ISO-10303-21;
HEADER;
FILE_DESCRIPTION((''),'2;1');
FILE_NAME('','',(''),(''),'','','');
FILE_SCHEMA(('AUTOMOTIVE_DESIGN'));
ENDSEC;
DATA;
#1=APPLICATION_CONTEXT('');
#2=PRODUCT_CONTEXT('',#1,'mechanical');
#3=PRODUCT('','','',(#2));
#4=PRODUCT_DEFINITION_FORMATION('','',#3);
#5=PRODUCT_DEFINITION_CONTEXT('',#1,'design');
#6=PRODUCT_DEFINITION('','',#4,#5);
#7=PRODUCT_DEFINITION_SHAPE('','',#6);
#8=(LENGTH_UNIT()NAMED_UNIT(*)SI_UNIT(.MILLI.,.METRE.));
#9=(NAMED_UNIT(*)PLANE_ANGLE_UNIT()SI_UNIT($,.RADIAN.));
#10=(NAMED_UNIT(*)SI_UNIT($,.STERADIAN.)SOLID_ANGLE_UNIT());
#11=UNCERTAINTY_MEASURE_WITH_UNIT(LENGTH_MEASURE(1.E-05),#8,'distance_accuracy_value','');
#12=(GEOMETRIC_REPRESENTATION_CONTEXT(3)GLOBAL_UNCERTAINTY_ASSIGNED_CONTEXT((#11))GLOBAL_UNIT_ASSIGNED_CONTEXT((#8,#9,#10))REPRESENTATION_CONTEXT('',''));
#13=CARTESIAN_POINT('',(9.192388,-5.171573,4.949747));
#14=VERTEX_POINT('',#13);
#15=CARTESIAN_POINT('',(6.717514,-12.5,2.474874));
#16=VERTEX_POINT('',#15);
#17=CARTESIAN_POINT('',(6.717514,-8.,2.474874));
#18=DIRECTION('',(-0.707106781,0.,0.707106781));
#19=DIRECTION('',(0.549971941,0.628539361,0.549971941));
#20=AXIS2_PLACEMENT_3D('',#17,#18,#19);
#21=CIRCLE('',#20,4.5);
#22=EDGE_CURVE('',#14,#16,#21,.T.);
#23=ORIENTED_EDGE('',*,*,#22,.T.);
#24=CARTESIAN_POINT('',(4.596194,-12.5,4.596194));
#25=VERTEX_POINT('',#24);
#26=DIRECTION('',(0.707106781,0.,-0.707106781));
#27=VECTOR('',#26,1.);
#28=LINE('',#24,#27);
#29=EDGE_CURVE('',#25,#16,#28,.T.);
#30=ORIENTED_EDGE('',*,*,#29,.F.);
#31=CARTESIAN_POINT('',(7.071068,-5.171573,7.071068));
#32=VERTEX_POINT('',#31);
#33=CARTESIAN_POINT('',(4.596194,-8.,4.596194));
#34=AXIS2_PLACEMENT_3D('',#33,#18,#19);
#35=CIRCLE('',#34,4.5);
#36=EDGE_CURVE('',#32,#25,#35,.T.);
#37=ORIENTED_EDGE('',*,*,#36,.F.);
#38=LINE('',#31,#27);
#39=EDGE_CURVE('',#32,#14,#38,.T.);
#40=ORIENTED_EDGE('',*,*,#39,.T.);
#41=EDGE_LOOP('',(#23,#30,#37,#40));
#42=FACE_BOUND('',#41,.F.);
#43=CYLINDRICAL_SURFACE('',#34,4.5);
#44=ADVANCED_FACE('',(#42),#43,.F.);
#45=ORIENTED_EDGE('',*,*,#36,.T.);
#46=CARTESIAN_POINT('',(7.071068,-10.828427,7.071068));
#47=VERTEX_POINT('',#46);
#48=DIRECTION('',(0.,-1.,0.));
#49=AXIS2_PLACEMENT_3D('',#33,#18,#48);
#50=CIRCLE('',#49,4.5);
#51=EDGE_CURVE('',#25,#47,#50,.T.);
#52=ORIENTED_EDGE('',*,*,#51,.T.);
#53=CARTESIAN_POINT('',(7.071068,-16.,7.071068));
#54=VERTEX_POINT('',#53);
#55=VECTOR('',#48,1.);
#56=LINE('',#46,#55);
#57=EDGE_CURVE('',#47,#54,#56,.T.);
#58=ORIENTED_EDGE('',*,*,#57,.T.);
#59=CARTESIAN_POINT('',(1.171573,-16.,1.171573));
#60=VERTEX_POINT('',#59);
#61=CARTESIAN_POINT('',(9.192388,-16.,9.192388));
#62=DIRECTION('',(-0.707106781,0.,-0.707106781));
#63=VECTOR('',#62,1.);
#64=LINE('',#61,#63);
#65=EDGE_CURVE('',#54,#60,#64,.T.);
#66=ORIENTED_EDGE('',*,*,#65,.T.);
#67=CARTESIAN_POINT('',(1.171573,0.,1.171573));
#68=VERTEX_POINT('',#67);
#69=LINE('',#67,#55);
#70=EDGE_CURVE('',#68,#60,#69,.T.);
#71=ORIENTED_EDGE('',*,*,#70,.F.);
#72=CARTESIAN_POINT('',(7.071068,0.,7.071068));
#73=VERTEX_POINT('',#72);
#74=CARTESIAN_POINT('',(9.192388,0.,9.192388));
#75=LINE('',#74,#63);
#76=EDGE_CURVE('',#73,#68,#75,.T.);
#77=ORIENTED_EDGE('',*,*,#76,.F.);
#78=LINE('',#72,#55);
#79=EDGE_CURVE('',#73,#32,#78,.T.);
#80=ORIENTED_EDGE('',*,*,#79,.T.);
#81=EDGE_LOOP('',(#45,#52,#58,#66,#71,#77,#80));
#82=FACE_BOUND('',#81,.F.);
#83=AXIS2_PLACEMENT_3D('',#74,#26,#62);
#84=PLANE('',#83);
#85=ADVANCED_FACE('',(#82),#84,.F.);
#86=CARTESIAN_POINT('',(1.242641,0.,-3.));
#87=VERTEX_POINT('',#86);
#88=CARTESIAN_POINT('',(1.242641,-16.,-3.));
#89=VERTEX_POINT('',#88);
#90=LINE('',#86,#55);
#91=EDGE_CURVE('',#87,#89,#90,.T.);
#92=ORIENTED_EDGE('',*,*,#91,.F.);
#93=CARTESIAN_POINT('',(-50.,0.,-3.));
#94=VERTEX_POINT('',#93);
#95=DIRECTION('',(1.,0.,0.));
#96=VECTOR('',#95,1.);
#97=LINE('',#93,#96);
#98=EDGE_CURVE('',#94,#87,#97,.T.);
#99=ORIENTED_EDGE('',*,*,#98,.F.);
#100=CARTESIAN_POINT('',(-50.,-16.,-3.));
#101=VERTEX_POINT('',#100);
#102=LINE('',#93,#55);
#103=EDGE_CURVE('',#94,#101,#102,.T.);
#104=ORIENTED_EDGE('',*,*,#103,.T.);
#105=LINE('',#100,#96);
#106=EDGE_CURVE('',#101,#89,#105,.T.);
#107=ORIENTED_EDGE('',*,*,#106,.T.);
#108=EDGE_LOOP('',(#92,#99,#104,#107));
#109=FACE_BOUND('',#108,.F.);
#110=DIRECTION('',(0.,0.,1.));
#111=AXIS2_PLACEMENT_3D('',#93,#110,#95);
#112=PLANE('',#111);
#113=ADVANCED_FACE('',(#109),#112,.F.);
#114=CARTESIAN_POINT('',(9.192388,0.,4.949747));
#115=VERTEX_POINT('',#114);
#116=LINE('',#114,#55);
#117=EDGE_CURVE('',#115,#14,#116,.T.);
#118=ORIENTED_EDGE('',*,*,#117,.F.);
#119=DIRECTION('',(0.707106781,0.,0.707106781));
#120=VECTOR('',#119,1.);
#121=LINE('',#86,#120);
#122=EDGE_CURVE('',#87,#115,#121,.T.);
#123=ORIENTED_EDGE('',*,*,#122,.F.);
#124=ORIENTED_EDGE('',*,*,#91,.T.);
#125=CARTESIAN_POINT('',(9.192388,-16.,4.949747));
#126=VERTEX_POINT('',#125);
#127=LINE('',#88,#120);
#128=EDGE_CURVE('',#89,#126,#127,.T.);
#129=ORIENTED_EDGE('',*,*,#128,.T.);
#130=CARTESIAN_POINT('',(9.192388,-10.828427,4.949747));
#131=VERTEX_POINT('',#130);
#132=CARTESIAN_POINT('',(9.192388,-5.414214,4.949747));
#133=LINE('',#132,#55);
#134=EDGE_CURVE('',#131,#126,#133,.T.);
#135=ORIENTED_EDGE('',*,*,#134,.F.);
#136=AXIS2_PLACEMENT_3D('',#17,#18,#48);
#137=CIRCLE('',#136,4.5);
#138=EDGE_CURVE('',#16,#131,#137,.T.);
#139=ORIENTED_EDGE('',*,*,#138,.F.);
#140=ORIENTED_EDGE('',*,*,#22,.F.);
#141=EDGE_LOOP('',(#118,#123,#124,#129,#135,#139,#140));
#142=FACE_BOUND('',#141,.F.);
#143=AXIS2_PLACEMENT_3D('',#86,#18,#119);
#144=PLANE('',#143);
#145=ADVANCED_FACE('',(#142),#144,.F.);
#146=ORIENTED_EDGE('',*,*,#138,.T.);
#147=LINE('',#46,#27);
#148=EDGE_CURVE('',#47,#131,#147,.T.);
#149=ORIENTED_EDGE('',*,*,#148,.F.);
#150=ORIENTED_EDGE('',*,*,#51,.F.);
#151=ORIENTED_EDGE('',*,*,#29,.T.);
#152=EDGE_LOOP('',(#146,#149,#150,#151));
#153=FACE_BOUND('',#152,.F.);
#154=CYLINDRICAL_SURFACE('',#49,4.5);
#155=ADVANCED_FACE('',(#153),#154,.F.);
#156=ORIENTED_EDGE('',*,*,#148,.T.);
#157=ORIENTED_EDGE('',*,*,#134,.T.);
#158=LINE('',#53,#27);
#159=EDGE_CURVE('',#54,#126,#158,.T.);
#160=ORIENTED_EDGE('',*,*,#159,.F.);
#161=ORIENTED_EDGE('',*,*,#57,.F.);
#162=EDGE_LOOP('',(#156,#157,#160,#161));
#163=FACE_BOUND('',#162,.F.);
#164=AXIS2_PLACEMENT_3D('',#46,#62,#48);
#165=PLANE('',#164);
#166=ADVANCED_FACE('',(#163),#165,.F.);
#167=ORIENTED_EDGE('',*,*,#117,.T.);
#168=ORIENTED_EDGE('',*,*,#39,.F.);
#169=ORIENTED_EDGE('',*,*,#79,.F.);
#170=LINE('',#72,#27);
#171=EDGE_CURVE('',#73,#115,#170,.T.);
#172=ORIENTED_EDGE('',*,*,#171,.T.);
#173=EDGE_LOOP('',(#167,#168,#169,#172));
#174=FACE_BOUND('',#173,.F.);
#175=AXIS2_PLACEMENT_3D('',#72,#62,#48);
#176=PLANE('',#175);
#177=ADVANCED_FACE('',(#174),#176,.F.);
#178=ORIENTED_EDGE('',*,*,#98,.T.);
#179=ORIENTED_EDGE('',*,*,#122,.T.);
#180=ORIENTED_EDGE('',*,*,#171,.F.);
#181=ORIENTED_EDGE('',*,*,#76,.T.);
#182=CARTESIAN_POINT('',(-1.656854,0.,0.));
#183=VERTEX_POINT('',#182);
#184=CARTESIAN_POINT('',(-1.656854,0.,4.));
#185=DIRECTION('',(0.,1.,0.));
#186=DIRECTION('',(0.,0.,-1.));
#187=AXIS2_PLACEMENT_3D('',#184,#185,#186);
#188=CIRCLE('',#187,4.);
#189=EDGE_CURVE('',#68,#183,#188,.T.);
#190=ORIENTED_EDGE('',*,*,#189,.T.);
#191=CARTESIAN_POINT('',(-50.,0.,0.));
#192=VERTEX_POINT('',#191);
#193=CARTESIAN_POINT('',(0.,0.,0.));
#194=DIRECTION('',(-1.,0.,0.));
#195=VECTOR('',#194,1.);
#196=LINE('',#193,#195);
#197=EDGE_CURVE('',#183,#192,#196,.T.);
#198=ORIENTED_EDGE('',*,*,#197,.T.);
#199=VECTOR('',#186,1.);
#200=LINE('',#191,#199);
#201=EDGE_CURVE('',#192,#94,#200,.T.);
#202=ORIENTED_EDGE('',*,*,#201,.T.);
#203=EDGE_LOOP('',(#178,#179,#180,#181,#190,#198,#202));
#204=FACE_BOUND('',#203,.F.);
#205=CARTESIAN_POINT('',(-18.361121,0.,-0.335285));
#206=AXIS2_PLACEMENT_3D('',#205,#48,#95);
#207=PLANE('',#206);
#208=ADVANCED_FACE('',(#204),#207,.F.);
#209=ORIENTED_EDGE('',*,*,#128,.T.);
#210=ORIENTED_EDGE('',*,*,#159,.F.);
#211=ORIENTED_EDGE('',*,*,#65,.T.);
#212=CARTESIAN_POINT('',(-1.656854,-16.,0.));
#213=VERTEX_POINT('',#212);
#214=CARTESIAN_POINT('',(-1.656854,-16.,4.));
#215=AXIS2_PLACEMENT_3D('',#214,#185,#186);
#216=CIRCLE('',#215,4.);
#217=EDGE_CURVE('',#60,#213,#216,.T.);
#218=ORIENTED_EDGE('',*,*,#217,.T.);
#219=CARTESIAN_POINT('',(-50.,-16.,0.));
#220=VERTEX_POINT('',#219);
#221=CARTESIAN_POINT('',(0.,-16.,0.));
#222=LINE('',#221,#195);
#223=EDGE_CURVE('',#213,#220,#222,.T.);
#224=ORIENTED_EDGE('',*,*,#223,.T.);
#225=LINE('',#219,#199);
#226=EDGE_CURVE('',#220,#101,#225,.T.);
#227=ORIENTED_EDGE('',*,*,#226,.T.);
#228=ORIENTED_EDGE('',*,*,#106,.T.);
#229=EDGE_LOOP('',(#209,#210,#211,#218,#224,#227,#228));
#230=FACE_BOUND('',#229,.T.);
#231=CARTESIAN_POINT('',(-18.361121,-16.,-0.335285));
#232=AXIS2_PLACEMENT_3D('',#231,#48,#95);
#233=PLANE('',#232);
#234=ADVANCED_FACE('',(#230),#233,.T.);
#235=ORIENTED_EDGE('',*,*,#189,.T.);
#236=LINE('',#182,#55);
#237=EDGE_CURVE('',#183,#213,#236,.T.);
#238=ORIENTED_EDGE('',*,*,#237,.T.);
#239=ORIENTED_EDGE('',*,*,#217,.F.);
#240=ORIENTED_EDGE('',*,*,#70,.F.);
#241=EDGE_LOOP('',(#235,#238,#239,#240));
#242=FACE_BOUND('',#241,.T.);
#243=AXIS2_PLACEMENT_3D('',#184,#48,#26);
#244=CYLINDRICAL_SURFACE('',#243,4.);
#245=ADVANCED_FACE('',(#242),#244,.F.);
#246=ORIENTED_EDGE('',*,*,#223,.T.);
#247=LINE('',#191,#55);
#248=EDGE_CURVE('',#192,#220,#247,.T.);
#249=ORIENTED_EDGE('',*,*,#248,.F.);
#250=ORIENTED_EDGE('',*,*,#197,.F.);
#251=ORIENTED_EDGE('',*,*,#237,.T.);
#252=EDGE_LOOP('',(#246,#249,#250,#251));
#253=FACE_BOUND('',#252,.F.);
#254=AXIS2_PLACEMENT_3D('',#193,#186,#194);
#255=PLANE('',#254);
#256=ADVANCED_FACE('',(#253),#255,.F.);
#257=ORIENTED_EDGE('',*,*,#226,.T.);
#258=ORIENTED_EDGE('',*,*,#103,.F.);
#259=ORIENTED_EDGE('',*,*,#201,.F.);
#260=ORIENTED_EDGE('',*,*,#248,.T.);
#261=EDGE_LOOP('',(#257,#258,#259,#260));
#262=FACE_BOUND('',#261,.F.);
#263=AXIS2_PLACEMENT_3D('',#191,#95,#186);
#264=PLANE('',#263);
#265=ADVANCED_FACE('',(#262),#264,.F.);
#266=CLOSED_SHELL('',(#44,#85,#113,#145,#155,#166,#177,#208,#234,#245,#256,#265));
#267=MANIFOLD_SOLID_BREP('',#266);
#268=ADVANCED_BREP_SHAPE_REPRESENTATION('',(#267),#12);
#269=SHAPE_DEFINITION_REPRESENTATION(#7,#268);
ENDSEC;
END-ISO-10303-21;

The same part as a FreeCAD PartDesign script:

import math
import FreeCAD as App
import Part
import Sketcher

V = App.Vector
Q = App.Units.Quantity


def edges_at(feature, points):
    """Names of the edges that pass closest to the given points."""
    edges = feature.Shape.Edges
    near = lambda p: min(range(len(edges)), key=lambda i: edges[i].distToShape(Part.Vertex(*p))[0])
    return sorted({f"Edge{near(p) + 1}" for p in points})


def add_polygon(sketch, points):
    """Adds a closed chain of lines whose ends are joined by coincident constraints."""
    first, n = sketch.GeometryCount, len(points)
    for a, b in zip(points, points[1:] + points[:1]):
        sketch.addGeometry(Part.LineSegment(App.Vector(*a, 0), App.Vector(*b, 0)), False)
    for i in range(n):
        sketch.addConstraint(Sketcher.Constraint("Coincident", first + i, 2, first + (i + 1) % n, 1))

doc = App.newDocument("Part")
params = doc.addObject("Spreadsheet::Sheet", "Params")
for row, (alias, value) in enumerate([
    ("sketch1_width", "50 mm"),
    ("sketch1_height", "3 mm"),
    ("sketch1_length", "13 mm"),
    ("sketch1_length2", "3 mm"),
    ("pad1_length", "16 mm"),
    ("sketch2_radius", "4.5 mm"),
    ("sketch2_width", "16 mm"),
    ("sketch2_height", "3 mm"),
    ("pocket1_length", "25 mm"),
    ("fillet_radius", "4 mm"),
], start=1):
    params.set(f"A{row}", alias)
    params.set(f"B{row}", "=" + value)
    params.setAlias(f"B{row}", alias)

body = doc.addObject("PartDesign::Body", "Body")

# Sketch on XZ plane
sketch1 = doc.addObject("Sketcher::SketchObject", "Sketch")
body.addObject(sketch1)
sketch1.AttachmentSupport = (doc.XZ_Plane, [""])
sketch1.MapMode = "FlatFace"
add_polygon(sketch1, [(9.2, 9.2), (0, 0), (-50, 0), (-50, -3), (1.2, -3), (11.3, 7.1)])  # lines 0-5
sketch1.addConstraint([
    Sketcher.Constraint("Horizontal", 1),
    Sketcher.Constraint("Vertical", 2),
    Sketcher.Constraint("Horizontal", 3),
    Sketcher.Constraint("Coincident", 0, 2, -1, 1),
    Sketcher.Constraint("Parallel", 0, 4),
    Sketcher.Constraint("Perpendicular", 4, 5),
    Sketcher.Constraint("DistanceX", 1, 2, 1, 1, 50.0),
    Sketcher.Constraint("DistanceY", 2, 2, 2, 1, 3.0),
    Sketcher.Constraint("Angle", 0, Q("-135 deg")),
    Sketcher.Constraint("Distance", 0, 13.0),
    Sketcher.Constraint("Distance", 5, 3.0),
])
sketch1.setExpression("Constraints[12]", "Params.sketch1_width")
sketch1.setExpression("Constraints[13]", "Params.sketch1_height")
sketch1.setExpression("Constraints[15]", "Params.sketch1_length")
sketch1.setExpression("Constraints[16]", "Params.sketch1_length2")
pad1 = doc.addObject("PartDesign::Pad", "Pad")
body.addObject(pad1)
pad1.Profile = sketch1
pad1.setExpression("Length", "Params.pad1_length")

# Sketch on an angled plane
sketch2 = doc.addObject("Sketcher::SketchObject", "Sketch001")
body.addObject(sketch2)
sketch2.Placement = App.Placement(V(0, 0, 0), App.Rotation(V(0, -1, 0), V(0.707106781, 0, 0.707106781), V(-0.707106781, 0, 0.707106781), "ZXY"))
sketch2.addGeometry([
    Part.ArcOfCircle(Part.Circle(V(8, 6.5, 0), V(0, 0, 1), 4.5), math.radians(129), math.radians(360)),  # 0
    Part.ArcOfCircle(Part.Circle(V(8, 6.5, 0), V(0, 0, 1), 4.5), math.radians(0), math.radians(51)),  # 1
    Part.LineSegment(V(10.8, 10, 0), V(16, 10, 0)),  # 2
    Part.LineSegment(V(16, 10, 0), V(16, 13, 0)),  # 3
    Part.LineSegment(V(16, 13, 0), V(0, 13, 0)),  # 4
    Part.LineSegment(V(0, 13, 0), V(0, 10, 0)),  # 5
    Part.LineSegment(V(0, 10, 0), V(5.2, 10, 0)),  # 6
], False)
sketch2.addConstraint([
    Sketcher.Constraint("Tangent", 0, 2, 1, 1),
    Sketcher.Constraint("Coincident", 1, 2, 2, 1),
    Sketcher.Constraint("Coincident", 2, 2, 3, 1),
    Sketcher.Constraint("Coincident", 3, 2, 4, 1),
    Sketcher.Constraint("Coincident", 4, 2, 5, 1),
    Sketcher.Constraint("Coincident", 5, 2, 6, 1),
    Sketcher.Constraint("Coincident", 6, 2, 0, 1),
    Sketcher.Constraint("Horizontal", 2),
    Sketcher.Constraint("Vertical", 3),
    Sketcher.Constraint("Horizontal", 4),
    Sketcher.Constraint("Vertical", 5),
    Sketcher.Constraint("Horizontal", 6),
    Sketcher.Constraint("Equal", 0, 1),
    Sketcher.Constraint("PointOnObject", 4, 2, -2),
    Sketcher.Constraint("Horizontal", 1, 3, 0, 2),
    Sketcher.Constraint("Horizontal", 2, 2, 5, 2),
    Sketcher.Constraint("Equal", 2, 6),
    Sketcher.Constraint("Radius", 0, 4.5),
    Sketcher.Constraint("DistanceX", 4, 2, 4, 1, 16.0),
    Sketcher.Constraint("DistanceY", 3, 1, 3, 2, 3.0),
    Sketcher.Constraint("DistanceY", -1, 1, 1, 2, 10.0),
    Sketcher.Constraint("DistanceY", -1, 1, 0, 3, 6.5),
])
sketch2.setExpression("Constraints[17]", "Params.sketch2_radius")
sketch2.setExpression("Constraints[18]", "Params.sketch2_width")
sketch2.setExpression("Constraints[19]", "Params.sketch2_height")
pocket1 = doc.addObject("PartDesign::Pocket", "Pocket")
body.addObject(pocket1)
pocket1.Profile = sketch2
pocket1.setExpression("Length", "Params.pocket1_length")
doc.recompute()

fillet = doc.addObject("PartDesign::Fillet", "Fillet")
body.addObject(fillet)
fillet.Base = (pocket1, edges_at(pocket1, [(0, -8, 0)]))
fillet.setExpression("Radius", "Params.fillet_radius")

doc.recompute()
